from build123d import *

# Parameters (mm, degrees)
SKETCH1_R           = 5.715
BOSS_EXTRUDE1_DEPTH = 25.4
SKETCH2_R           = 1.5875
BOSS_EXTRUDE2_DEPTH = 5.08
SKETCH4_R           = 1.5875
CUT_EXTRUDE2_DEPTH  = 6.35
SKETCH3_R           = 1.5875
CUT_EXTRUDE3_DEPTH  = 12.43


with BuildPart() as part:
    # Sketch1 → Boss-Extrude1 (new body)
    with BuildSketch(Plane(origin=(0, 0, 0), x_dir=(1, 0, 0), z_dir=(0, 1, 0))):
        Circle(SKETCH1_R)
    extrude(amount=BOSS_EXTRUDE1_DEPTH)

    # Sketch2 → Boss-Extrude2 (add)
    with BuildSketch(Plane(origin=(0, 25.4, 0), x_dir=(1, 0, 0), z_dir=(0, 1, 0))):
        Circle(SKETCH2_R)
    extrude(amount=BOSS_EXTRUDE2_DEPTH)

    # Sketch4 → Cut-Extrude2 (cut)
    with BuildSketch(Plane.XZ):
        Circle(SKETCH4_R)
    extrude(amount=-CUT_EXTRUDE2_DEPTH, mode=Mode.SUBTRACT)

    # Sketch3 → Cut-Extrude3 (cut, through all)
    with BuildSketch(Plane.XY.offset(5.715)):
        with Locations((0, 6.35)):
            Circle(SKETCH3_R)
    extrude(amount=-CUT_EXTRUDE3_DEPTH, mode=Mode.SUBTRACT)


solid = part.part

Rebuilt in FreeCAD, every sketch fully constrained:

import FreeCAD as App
import Part
import Sketcher
from FreeCAD import Vector
Q = App.Units.Quantity

doc = App.newDocument("Part")
body = doc.addObject("PartDesign::Body", "Body")

# Sketch on XZ plane
sketch1 = body.newObject("Sketcher::SketchObject", "Sketch")
sketch1.AttachmentSupport = (doc.getObject("XZ_Plane"), [""])
sketch1.MapMode = "FlatFace"
sketch1.addGeometry(Part.Circle(Vector(0, 0, 0), Vector(0, 0, 1), 5.715), False)
sketch1.addConstraint([
    Sketcher.Constraint("Coincident", 0, 3, -1, 1),
    Sketcher.Constraint("Diameter", 0, Q("0.45 in")),
])
pad1 = body.newObject("PartDesign::Pad", "Pad")
pad1.Profile = sketch1
pad1.Length = Q("1 in")
pad1.Reversed = True

# Sketch on XZ plane
sketch2 = body.newObject("Sketcher::SketchObject", "Sketch001")
sketch2.AttachmentSupport = (doc.getObject("XZ_Plane"), [""])
sketch2.MapMode = "FlatFace"
sketch2.AttachmentOffset = App.Placement(Vector(0, 0, -1 * 25.4), App.Rotation())
sketch2.addGeometry(Part.Circle(Vector(0, 0, 0), Vector(0, 0, 1), 1.5875), False)
sketch2.addConstraint([
    Sketcher.Constraint("Coincident", 0, 3, -1, 1),
    Sketcher.Constraint("Diameter", 0, Q("0.125 in")),
])
pad2 = body.newObject("PartDesign::Pad", "Pad001")
pad2.Profile = sketch2
pad2.Length = Q("0.2 in")
pad2.Reversed = True

# Sketch on XZ plane
sketch3 = body.newObject("Sketcher::SketchObject", "Sketch002")
sketch3.AttachmentSupport = (doc.getObject("XZ_Plane"), [""])
sketch3.MapMode = "FlatFace"
sketch3.addGeometry(Part.Circle(Vector(0, 0, 0), Vector(0, 0, 1), 1.5875), False)
sketch3.addConstraint([
    Sketcher.Constraint("Coincident", 0, 3, -1, 1),
    Sketcher.Constraint("Diameter", 0, Q("0.125 in")),
])
pocket1 = body.newObject("PartDesign::Pocket", "Pocket")
pocket1.Profile = sketch3
pocket1.Length = Q("0.25 in")

# Sketch on XY plane
sketch4 = body.newObject("Sketcher::SketchObject", "Sketch003")
sketch4.AttachmentSupport = (doc.getObject("XY_Plane"), [""])
sketch4.MapMode = "FlatFace"
sketch4.AttachmentOffset = App.Placement(Vector(0, 0, 0.225 * 25.4), App.Rotation())
sketch4.addGeometry(Part.Circle(Vector(0, 6.35, 0), Vector(0, 0, 1), 1.5875), False)
sketch4.addConstraint([
    Sketcher.Constraint("PointOnObject", 0, 3, -2),
    Sketcher.Constraint("Diameter", 0, Q("0.125 in")),
    Sketcher.Constraint("DistanceY", -1, 1, 0, 3, Q("0.25 in")),
])
pocket2 = body.newObject("PartDesign::Pocket", "Pocket001")
pocket2.Profile = sketch4
pocket2.Type = "ThroughAll"

doc.recompute()
